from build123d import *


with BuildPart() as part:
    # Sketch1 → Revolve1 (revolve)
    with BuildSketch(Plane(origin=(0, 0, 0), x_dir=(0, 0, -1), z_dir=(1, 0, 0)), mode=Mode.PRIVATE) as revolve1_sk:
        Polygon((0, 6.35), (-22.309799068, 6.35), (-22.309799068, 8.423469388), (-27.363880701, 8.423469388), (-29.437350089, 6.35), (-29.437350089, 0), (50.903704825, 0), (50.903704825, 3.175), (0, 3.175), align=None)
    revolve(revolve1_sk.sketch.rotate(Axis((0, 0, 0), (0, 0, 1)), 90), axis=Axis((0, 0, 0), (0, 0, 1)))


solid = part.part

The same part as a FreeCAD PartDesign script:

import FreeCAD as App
import Part
import Sketcher
from FreeCAD import Vector
Q = App.Units.Quantity

doc = App.newDocument("Part")
params = doc.addObject("Spreadsheet::Sheet", "Params")
for row, (alias, value) in enumerate([
    ("sketch1_width", "0.25 in"),
    ("revolution_angle", "360 deg"),
], start=1):
    params.set(f"A{row}", alias)
    params.set(f"B{row}", "=" + value)
    params.setAlias(f"B{row}", alias)

body = doc.addObject("PartDesign::Body", "Body")

sketch1 = body.newObject("Sketcher::SketchObject", "Sketch")
sketch1.AttachmentSupport = (doc.getObject("YZ_Plane"), [""])
sketch1.MapMode = "FlatFace"
sketch1.addGeometry([
    Part.LineSegment(Vector(6.3, 0, 0), Vector(6.3, 22.3, 0)),
    Part.LineSegment(Vector(6.3, 22.3, 0), Vector(8.4, 22.3, 0)),
    Part.LineSegment(Vector(8.4, 22.3, 0), Vector(8.4, 27.4, 0)),
    Part.LineSegment(Vector(8.4, 27.4, 0), Vector(6.3, 29.4, 0)),
    Part.LineSegment(Vector(6.3, 29.4, 0), Vector(0, 29.4, 0)),
    Part.LineSegment(Vector(0, 29.4, 0), Vector(0, -50.9, 0)),
    Part.LineSegment(Vector(0, -50.9, 0), Vector(3.2, -50.9, 0)),
    Part.LineSegment(Vector(3.2, -50.9, 0), Vector(3.2, 0, 0)),
    Part.LineSegment(Vector(3.2, 0, 0), Vector(6.3, 0, 0)),
], False)
sketch1.addConstraint([
    Sketcher.Constraint("Coincident", 0, 2, 1, 1),
    Sketcher.Constraint("Coincident", 1, 2, 2, 1),
    Sketcher.Constraint("Coincident", 2, 2, 3, 1),
    Sketcher.Constraint("Coincident", 3, 2, 4, 1),
    Sketcher.Constraint("Coincident", 4, 2, 5, 1),
    Sketcher.Constraint("Coincident", 5, 2, 6, 1),
    Sketcher.Constraint("Coincident", 6, 2, 7, 1),
    Sketcher.Constraint("Coincident", 7, 2, 8, 1),
    Sketcher.Constraint("Coincident", 8, 2, 0, 1),
    Sketcher.Constraint("Vertical", 0),
    Sketcher.Constraint("Horizontal", 1),
    Sketcher.Constraint("Vertical", 2),
    Sketcher.Constraint("Horizontal", 4),
    Sketcher.Constraint("Vertical", 5),
    Sketcher.Constraint("Horizontal", 6),
    Sketcher.Constraint("Vertical", 7),
    Sketcher.Constraint("Horizontal", 8),
    Sketcher.Constraint("PointOnObject", 4, 2, -2),
    Sketcher.Constraint("PointOnObject", 7, 2, -1),
    Sketcher.Constraint("Vertical", 0, 2, 3, 2),
    Sketcher.Constraint("Equal", 6, 8),
    Sketcher.Constraint("Angle", 3, Q("135 deg")),
    Sketcher.Constraint("DistanceX", 4, 2, 4, 1, Q("0.25 in")),
    Sketcher.Constraint("DistanceY", 0, 1, 0, 2, 22.309799),
    Sketcher.Constraint("DistanceX", 1, 1, 1, 2, 2.073469),
    Sketcher.Constraint("DistanceY", 2, 1, 2, 2, 5.054082),
    Sketcher.Constraint("DistanceY", 5, 2, 5, 1, 80.341055),
])
sketch1.setExpression("Constraints[22]", "Params.sketch1_width")
revolution = body.newObject("PartDesign::Revolution", "Revolution")
revolution.Profile = sketch1
revolution.ReferenceAxis = (sketch1, ["V_Axis"])
revolution.setExpression("Angle", "Params.revolution_angle")

doc.recompute()
